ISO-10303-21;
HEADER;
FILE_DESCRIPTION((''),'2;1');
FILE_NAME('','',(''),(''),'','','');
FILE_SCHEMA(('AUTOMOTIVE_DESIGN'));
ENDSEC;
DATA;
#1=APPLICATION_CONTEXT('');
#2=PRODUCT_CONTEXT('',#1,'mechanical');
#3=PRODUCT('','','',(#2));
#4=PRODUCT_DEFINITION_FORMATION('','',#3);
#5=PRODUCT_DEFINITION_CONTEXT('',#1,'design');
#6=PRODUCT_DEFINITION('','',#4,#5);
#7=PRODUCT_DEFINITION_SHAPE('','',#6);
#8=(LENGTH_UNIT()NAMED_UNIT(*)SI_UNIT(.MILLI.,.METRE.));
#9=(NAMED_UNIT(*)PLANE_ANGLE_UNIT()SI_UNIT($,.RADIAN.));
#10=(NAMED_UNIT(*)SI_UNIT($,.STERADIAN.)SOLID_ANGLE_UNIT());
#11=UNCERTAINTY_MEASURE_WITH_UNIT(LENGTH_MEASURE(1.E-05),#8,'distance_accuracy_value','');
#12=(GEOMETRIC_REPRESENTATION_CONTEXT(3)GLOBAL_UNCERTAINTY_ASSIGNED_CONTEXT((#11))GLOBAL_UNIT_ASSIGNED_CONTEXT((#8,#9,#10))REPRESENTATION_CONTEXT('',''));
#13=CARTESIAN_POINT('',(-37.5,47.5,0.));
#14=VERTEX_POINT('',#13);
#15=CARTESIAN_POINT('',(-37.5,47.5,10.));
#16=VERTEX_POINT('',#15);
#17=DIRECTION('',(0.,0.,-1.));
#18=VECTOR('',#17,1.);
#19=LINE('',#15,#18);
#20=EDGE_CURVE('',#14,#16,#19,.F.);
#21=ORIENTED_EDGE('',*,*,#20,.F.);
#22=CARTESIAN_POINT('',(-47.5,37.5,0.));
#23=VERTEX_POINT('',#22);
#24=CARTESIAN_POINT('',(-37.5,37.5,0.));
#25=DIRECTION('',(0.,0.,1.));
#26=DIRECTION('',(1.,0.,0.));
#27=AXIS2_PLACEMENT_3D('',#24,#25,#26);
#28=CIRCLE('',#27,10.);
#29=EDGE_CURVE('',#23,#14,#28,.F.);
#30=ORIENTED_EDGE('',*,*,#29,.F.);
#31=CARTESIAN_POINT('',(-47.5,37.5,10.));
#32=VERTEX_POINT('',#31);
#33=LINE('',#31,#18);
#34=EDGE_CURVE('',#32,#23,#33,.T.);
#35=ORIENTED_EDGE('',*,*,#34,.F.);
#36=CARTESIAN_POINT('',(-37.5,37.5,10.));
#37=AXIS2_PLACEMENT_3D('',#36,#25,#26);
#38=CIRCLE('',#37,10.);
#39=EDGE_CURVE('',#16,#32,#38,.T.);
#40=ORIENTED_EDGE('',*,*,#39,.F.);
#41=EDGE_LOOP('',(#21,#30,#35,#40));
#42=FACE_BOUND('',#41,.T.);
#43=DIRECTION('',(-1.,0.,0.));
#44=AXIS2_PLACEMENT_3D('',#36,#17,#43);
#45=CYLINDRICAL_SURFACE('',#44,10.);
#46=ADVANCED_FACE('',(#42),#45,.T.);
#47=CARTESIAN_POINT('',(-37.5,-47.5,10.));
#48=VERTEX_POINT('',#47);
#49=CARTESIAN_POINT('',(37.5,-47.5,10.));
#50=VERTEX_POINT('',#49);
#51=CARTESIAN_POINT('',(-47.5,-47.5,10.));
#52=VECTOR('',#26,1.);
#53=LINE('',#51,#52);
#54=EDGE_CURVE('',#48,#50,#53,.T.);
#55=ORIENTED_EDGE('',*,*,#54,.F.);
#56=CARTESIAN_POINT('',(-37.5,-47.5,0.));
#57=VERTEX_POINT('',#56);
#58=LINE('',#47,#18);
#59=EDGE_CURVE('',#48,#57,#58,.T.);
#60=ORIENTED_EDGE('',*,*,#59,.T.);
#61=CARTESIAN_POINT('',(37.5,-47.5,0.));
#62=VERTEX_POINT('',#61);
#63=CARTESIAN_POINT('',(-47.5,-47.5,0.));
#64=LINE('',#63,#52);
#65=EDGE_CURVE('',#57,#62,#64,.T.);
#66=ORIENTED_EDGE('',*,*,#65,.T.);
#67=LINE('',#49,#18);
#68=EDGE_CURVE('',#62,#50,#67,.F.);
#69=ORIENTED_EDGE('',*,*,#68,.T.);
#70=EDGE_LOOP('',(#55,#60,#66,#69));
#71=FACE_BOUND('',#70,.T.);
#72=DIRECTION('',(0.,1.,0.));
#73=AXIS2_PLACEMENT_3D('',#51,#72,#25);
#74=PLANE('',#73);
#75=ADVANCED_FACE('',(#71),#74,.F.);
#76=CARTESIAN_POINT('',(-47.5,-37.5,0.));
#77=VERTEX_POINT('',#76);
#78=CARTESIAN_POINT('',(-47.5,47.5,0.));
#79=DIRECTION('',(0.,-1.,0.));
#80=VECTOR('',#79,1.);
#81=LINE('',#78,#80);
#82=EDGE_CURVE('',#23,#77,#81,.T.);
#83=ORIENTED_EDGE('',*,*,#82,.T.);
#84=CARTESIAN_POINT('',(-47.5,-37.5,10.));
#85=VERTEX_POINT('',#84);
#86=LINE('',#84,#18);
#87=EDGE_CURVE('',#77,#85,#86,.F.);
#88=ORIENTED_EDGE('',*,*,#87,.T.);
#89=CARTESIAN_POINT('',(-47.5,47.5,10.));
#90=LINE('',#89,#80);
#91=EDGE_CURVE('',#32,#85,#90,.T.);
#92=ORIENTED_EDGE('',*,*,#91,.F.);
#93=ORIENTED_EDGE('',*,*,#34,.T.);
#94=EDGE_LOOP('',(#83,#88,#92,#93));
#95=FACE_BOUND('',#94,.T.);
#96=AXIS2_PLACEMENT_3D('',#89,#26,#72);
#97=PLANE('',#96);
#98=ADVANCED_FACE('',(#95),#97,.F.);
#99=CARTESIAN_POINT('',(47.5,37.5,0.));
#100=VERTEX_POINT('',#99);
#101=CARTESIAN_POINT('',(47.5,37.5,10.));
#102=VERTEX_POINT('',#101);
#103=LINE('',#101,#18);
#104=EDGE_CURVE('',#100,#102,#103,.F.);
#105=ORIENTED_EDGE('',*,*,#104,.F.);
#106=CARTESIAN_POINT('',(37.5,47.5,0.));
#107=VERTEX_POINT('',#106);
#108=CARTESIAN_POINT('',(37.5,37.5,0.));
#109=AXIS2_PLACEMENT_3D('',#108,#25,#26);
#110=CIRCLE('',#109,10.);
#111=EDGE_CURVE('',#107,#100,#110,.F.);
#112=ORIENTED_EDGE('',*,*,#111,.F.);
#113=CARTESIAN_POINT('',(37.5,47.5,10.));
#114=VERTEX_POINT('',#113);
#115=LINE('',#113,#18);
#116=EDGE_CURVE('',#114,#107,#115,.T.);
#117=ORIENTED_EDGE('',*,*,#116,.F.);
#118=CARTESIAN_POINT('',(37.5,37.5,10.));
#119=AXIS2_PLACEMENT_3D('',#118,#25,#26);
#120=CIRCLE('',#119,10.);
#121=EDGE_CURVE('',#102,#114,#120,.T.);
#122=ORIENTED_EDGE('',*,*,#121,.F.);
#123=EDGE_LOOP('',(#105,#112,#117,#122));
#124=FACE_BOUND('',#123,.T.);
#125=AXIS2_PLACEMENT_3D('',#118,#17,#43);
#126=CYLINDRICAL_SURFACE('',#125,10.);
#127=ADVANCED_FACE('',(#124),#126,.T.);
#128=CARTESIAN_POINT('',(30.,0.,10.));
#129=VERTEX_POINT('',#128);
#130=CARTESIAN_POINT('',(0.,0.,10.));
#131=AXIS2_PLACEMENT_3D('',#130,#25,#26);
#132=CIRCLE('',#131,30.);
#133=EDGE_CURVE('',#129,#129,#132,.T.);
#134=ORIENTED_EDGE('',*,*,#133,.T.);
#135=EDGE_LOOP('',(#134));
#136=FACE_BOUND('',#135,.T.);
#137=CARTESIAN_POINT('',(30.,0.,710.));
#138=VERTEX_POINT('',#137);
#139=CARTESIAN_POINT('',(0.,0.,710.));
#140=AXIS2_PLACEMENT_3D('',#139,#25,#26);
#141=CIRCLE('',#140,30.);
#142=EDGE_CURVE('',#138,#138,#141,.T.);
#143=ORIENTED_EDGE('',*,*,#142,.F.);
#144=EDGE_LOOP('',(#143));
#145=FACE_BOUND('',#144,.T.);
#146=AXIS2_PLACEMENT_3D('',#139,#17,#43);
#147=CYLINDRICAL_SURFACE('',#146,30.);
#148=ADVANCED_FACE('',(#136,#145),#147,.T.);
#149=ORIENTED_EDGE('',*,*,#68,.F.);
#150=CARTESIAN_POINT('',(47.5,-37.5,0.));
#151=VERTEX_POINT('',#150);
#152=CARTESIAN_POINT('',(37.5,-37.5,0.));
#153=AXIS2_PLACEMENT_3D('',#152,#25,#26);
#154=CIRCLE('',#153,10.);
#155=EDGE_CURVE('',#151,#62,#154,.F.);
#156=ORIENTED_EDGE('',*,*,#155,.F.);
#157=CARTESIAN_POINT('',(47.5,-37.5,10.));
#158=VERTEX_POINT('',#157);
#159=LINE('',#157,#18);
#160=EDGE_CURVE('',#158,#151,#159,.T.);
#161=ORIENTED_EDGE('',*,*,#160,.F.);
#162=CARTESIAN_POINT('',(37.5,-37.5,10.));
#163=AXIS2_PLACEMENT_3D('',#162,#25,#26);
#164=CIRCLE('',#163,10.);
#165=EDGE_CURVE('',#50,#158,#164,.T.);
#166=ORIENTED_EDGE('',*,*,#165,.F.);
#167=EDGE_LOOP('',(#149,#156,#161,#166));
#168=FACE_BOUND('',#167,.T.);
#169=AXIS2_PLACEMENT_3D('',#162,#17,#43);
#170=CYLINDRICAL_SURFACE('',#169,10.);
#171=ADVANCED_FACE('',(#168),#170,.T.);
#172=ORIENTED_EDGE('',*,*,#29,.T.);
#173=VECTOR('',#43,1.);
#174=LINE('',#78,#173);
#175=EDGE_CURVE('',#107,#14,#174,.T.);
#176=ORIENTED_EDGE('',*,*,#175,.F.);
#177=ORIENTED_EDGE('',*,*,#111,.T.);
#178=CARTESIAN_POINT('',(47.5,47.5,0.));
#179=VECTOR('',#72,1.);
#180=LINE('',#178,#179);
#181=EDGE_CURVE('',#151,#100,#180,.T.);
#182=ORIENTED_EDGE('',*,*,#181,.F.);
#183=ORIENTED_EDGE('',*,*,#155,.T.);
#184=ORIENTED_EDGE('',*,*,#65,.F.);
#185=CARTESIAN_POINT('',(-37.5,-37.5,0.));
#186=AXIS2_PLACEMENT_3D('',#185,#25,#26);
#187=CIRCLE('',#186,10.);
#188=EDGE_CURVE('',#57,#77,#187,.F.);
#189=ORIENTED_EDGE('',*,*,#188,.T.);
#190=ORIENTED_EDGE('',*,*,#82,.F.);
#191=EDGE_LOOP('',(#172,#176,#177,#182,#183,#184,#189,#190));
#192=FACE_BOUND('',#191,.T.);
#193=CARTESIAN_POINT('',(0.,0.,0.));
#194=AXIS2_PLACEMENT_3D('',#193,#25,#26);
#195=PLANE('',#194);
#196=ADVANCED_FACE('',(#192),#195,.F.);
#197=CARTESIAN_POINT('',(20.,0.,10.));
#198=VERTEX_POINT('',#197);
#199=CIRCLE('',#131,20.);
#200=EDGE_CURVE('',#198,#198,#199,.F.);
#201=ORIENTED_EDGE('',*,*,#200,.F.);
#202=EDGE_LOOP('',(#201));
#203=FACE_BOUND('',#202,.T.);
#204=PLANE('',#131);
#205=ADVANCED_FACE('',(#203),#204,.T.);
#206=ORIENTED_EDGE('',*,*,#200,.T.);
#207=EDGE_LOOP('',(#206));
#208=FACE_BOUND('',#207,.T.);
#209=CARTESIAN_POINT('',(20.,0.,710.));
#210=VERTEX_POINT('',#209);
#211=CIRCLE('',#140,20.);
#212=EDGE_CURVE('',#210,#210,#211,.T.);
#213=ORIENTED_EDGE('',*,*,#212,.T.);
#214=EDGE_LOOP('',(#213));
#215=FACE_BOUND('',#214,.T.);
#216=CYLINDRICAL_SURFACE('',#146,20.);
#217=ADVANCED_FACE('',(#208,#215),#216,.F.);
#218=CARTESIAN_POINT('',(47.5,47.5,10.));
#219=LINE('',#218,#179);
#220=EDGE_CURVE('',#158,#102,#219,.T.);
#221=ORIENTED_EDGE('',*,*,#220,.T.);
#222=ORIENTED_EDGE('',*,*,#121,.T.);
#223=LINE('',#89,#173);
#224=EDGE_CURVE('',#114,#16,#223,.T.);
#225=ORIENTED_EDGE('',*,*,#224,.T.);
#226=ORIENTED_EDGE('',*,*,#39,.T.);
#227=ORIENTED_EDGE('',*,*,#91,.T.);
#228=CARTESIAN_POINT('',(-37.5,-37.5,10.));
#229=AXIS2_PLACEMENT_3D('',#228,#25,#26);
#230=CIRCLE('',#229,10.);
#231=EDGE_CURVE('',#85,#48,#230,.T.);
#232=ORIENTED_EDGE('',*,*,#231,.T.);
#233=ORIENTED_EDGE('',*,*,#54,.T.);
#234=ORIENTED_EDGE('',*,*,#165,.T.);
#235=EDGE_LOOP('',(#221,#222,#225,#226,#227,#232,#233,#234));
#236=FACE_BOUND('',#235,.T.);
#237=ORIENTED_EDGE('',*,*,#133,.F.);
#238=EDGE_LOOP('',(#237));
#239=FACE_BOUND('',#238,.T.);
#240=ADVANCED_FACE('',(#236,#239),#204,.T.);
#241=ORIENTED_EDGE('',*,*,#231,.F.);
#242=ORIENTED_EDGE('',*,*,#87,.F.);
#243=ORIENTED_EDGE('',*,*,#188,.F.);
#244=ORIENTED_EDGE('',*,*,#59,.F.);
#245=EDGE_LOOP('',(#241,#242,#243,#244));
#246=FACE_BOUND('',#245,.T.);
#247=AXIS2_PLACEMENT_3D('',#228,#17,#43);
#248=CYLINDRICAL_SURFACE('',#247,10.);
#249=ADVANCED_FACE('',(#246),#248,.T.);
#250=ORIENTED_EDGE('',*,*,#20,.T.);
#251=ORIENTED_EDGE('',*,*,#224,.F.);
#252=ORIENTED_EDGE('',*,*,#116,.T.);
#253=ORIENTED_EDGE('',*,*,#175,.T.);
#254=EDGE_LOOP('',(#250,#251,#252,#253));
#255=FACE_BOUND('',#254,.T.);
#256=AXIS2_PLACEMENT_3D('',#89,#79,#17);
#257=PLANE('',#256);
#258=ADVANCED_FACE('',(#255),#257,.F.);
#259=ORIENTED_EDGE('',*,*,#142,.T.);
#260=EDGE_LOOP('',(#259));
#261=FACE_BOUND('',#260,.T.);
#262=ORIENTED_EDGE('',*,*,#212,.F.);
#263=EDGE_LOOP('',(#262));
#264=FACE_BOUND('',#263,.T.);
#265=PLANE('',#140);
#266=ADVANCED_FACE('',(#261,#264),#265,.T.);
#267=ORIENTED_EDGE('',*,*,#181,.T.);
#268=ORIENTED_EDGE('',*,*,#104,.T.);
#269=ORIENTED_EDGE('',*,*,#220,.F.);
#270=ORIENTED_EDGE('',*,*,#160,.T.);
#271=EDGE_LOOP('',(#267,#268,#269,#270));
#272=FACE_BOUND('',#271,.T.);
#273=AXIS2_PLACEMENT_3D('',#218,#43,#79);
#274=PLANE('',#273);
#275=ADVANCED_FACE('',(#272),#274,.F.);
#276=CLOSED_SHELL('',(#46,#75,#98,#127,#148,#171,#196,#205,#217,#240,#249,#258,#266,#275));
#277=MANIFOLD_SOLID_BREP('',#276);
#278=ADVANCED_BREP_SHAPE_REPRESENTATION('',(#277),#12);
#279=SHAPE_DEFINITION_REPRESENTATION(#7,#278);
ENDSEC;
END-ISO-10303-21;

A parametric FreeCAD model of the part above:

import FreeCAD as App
import Part
import Sketcher
from FreeCAD import Vector


def edges_at(feature, points):
    """Names of the edges that pass closest to the given points."""
    edges = feature.Shape.Edges
    near = lambda p: min(range(len(edges)), key=lambda i: edges[i].distToShape(Part.Vertex(*p))[0])
    return sorted({f"Edge{near(p) + 1}" for p in points})


def add_polygon(sketch, points):
    """Adds a closed chain of lines whose ends are joined by coincident constraints."""
    first, n = sketch.GeometryCount, len(points)
    for a, b in zip(points, points[1:] + points[:1]):
        sketch.addGeometry(Part.LineSegment(App.Vector(*a, 0), App.Vector(*b, 0)), False)
    for i in range(n):
        sketch.addConstraint(Sketcher.Constraint("Coincident", first + i, 2, first + (i + 1) % n, 1))

doc = App.newDocument("Part")
body = doc.addObject("PartDesign::Body", "Body")

# Sketch on XY plane
sketch1 = body.newObject("Sketcher::SketchObject", "Sketch")
sketch1.AttachmentSupport = (doc.getObject("XY_Plane"), [""])
sketch1.MapMode = "FlatFace"
add_polygon(sketch1, [(-48, 48), (-48, -48), (48, -48), (48, 48)])  # lines 0-3
sketch1.addConstraint([
    Sketcher.Constraint("Vertical", 0),
    Sketcher.Constraint("Horizontal", 1),
    Sketcher.Constraint("Vertical", 2),
    Sketcher.Constraint("Horizontal", 3),
    Sketcher.Constraint("Symmetric", 0, 2, 2, 2, -1, 1),
    Sketcher.Constraint("Equal", 3, 0),
    Sketcher.Constraint("DistanceX", 1, 1, 1, 2, 95.0),
])
pad1 = body.newObject("PartDesign::Pad", "Pad")
pad1.Profile = sketch1
pad1.Length = 10
doc.recompute()

fillet = body.newObject("PartDesign::Fillet", "Fillet")
fillet.Base = (pad1, edges_at(pad1, [
    (47.5, -47.5, 5),
    (-47.5, -47.5, 5),
    (-47.5, 47.5, 5),
    (47.5, 47.5, 5),
]))
fillet.Radius = 10

# Sketch on XY plane
sketch2 = body.newObject("Sketcher::SketchObject", "Sketch001")
sketch2.AttachmentSupport = (doc.getObject("XY_Plane"), [""])
sketch2.MapMode = "FlatFace"
sketch2.AttachmentOffset = App.Placement(Vector(0, 0, 10), App.Rotation())
sketch2.addGeometry([
    Part.Circle(Vector(0, 0, 0), Vector(0, 0, 1), 30),
    Part.Circle(Vector(0, 0, 0), Vector(0, 0, 1), 20),
], False)
sketch2.addConstraint([
    Sketcher.Constraint("Coincident", 0, 3, -1, 1),
    Sketcher.Constraint("Coincident", 1, 3, -1, 1),
    Sketcher.Constraint("Diameter", 0, 60.0),
    Sketcher.Constraint("Diameter", 1, 40.0),
])
pad2 = body.newObject("PartDesign::Pad", "Pad001")
pad2.Profile = sketch2
pad2.Length = 700

doc.recompute()
